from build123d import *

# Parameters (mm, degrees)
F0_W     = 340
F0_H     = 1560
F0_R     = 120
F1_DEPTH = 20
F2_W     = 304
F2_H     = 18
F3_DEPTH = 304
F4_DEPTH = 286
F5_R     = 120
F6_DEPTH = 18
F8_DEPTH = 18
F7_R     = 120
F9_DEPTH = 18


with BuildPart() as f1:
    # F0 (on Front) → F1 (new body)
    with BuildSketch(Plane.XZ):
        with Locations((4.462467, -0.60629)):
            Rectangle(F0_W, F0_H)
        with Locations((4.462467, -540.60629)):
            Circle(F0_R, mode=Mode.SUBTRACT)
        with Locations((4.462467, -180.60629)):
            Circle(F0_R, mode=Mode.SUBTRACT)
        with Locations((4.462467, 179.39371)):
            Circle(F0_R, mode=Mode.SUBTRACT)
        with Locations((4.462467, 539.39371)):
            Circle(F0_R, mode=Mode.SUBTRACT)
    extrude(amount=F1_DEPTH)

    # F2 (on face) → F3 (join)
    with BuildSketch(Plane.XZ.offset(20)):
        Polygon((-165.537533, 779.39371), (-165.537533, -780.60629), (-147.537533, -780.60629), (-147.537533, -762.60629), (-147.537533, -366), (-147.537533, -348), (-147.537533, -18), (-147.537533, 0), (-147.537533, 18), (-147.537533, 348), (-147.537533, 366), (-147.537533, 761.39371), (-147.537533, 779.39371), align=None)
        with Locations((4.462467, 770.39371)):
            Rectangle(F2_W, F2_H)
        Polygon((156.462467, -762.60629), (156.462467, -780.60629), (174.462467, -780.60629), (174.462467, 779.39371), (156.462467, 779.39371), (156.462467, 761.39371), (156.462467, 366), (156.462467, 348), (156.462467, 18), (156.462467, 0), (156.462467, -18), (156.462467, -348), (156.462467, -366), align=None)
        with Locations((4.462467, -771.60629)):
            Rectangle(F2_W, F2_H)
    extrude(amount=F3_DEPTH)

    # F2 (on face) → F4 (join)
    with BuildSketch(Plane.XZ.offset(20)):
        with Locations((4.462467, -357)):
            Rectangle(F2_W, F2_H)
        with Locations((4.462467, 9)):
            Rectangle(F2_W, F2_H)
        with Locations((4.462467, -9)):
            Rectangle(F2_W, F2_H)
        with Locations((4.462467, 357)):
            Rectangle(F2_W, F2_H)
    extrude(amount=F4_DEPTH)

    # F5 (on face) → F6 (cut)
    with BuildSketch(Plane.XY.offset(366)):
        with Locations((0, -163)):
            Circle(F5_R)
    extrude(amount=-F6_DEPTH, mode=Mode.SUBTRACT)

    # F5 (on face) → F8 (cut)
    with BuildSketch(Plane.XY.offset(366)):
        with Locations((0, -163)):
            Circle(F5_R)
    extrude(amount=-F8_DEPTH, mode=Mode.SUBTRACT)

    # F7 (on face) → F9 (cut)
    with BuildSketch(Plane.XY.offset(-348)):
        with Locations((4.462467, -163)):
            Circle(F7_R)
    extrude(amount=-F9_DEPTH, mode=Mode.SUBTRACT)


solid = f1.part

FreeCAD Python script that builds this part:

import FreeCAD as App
import Part
import Sketcher


def add_polygon(sketch, points):
    """Adds a closed chain of lines whose ends are joined by coincident constraints."""
    first, n = sketch.GeometryCount, len(points)
    for a, b in zip(points, points[1:] + points[:1]):
        sketch.addGeometry(Part.LineSegment(App.Vector(*a, 0), App.Vector(*b, 0)), False)
    for i in range(n):
        sketch.addConstraint(Sketcher.Constraint("Coincident", first + i, 2, first + (i + 1) % n, 1))

doc = App.newDocument("Part")
body = doc.addObject("PartDesign::Body", "Body")

# Sketch on XZ plane
sketch1 = body.newObject("Sketcher::SketchObject", "Sketch")
sketch1.AttachmentSupport = (doc.getObject("XZ_Plane"), [""])
sketch1.MapMode = "FlatFace"
add_polygon(sketch1, [(-166, 779), (-166, -781), (174, -781), (174, 779)])  # lines 0-3
sketch1.addGeometry(Part.Circle(App.Vector(4, -541, 0), App.Vector(0, 0, 1), 120), False)  # 4
sketch1.addGeometry(Part.Circle(App.Vector(4, -181, 0), App.Vector(0, 0, 1), 120), False)  # 5
sketch1.addGeometry(Part.Circle(App.Vector(4, 179, 0), App.Vector(0, 0, 1), 120), False)  # 6
sketch1.addGeometry(Part.Circle(App.Vector(4, 539, 0), App.Vector(0, 0, 1), 120), False)  # 7
sketch1.addConstraint([
    Sketcher.Constraint("Vertical", 0),
    Sketcher.Constraint("Horizontal", 1),
    Sketcher.Constraint("Vertical", 2),
    Sketcher.Constraint("Horizontal", 3),
    Sketcher.Constraint("Equal", 4, 5),
    Sketcher.Constraint("Equal", 5, 6),
    Sketcher.Constraint("Equal", 6, 7),
    Sketcher.Constraint("Vertical", 4, 3, 5, 3),
    Sketcher.Constraint("Vertical", 5, 3, 6, 3),
    Sketcher.Constraint("Vertical", 6, 3, 7, 3),
    Sketcher.Constraint("Diameter", 4, 240.0),
    Sketcher.Constraint("DistanceX", 1, 1, 1, 2, 340.0),
    Sketcher.Constraint("DistanceY", 0, 2, 0, 1, 1560.0),
    Sketcher.Constraint("DistanceY", 4, 3, 5, 3, 360.0),
    Sketcher.Constraint("DistanceY", 5, 3, 6, 3, 360.0),
    Sketcher.Constraint("DistanceY", 6, 3, 7, 3, 360.0),
    Sketcher.Constraint("DistanceX", 0, 2, 4, 3, 170.0),
    Sketcher.Constraint("DistanceY", 0, 2, 4, 3, 240.0),
    Sketcher.Constraint("DistanceY", 4, 3, -1, 1, 540.60629),
    Sketcher.Constraint("DistanceX", -1, 1, 4, 3, 4.462467),
])
pad1 = body.newObject("PartDesign::Pad", "Pad")
pad1.Profile = sketch1
pad1.Length = 20

# Sketch on XZ plane
sketch2 = body.newObject("Sketcher::SketchObject", "Sketch001")
sketch2.AttachmentSupport = (doc.getObject("XZ_Plane"), [""])
sketch2.MapMode = "FlatFace"
sketch2.AttachmentOffset = App.Placement(App.Vector(0, 0, 20), App.Rotation())
add_polygon(sketch2, [(-166, 779), (-166, -781), (174, -781), (174, 779)])  # lines 0-3
add_polygon(sketch2, [(-148, -763), (-148, 761), (156, 761), (156, -763)])  # lines 4-7
sketch2.addConstraint([
    Sketcher.Constraint("Vertical", 0),
    Sketcher.Constraint("Horizontal", 1),
    Sketcher.Constraint("Vertical", 2),
    Sketcher.Constraint("Horizontal", 3),
    Sketcher.Constraint("Vertical", 4),
    Sketcher.Constraint("Horizontal", 5),
    Sketcher.Constraint("Vertical", 6),
    Sketcher.Constraint("Horizontal", 7),
    Sketcher.Constraint("DistanceX", 1, 1, 1, 2, 340.0),
    Sketcher.Constraint("DistanceX", 5, 1, 5, 2, 304.0),
    Sketcher.Constraint("DistanceY", 0, 2, 0, 1, 1560.0),
    Sketcher.Constraint("DistanceY", 4, 1, 4, 2, 1524.0),
    Sketcher.Constraint("DistanceX", 3, 2, 4, 2, 18.0),
    Sketcher.Constraint("DistanceY", 4, 2, 3, 2, 18.0),
    Sketcher.Constraint("DistanceY", 0, 2, -1, 1, 780.60629),
    Sketcher.Constraint("DistanceX", 0, 2, -1, 1, 165.537533),
])
pad2 = body.newObject("PartDesign::Pad", "Pad001")
pad2.Profile = sketch2
pad2.Length = 304

# Sketch on XZ plane
sketch3 = body.newObject("Sketcher::SketchObject", "Sketch002")
sketch3.AttachmentSupport = (doc.getObject("XZ_Plane"), [""])
sketch3.MapMode = "FlatFace"
sketch3.AttachmentOffset = App.Placement(App.Vector(0, 0, 20), App.Rotation())
add_polygon(sketch3, [(-148, -348), (-148, -366), (156, -366), (156, -348)])  # lines 0-3
add_polygon(sketch3, [(-148, 18), (-148, -18), (156, -18), (156, 18)])  # lines 4-7
add_polygon(sketch3, [(-148, 366), (-148, 348), (156, 348), (156, 366)])  # lines 8-11
sketch3.addConstraint([
    Sketcher.Constraint("Vertical", 0),
    Sketcher.Constraint("Horizontal", 1),
    Sketcher.Constraint("Vertical", 2),
    Sketcher.Constraint("Horizontal", 3),
    Sketcher.Constraint("Vertical", 4),
    Sketcher.Constraint("Horizontal", 5),
    Sketcher.Constraint("Vertical", 6),
    Sketcher.Constraint("Horizontal", 7),
    Sketcher.Constraint("Vertical", 8),
    Sketcher.Constraint("Horizontal", 9),
    Sketcher.Constraint("Vertical", 10),
    Sketcher.Constraint("Horizontal", 11),
    Sketcher.Constraint("Symmetric", 3, 2, 8, 2, -1),
    Sketcher.Constraint("Symmetric", 1, 2, 10, 2, -1),
    Sketcher.Constraint("Vertical", 3, 2, 4, 2),
    Sketcher.Constraint("Vertical", 2, 2, 5, 2),
    Sketcher.Constraint("DistanceX", 1, 1, 1, 2, 304.0),
    Sketcher.Constraint("DistanceY", 0, 2, 0, 1, 18.0),
    Sketcher.Constraint("DistanceY", 4, 2, 4, 1, 36.0),
    Sketcher.Constraint("DistanceY", 0, 2, -1, 1, 366.0),
    Sketcher.Constraint("DistanceY", 4, 2, -1, 1, 18.0),
    Sketcher.Constraint("DistanceX", 0, 2, -1, 1, 147.537533),
])
pad3 = body.newObject("PartDesign::Pad", "Pad002")
pad3.Profile = sketch3
pad3.Length = 286

# Sketch on XY plane
sketch4 = body.newObject("Sketcher::SketchObject", "Sketch003")
sketch4.AttachmentSupport = (doc.getObject("XY_Plane"), [""])
sketch4.MapMode = "FlatFace"
sketch4.AttachmentOffset = App.Placement(App.Vector(0, 0, 366), App.Rotation())
sketch4.addGeometry(Part.Circle(App.Vector(0, -163, 0), App.Vector(0, 0, 1), 120), False)
sketch4.addConstraint([
    Sketcher.Constraint("PointOnObject", 0, 3, -2),
    Sketcher.Constraint("Diameter", 0, 240.0),
    Sketcher.Constraint("DistanceY", 0, 3, -1, 1, 163.0),
])
pocket1 = body.newObject("PartDesign::Pocket", "Pocket")
pocket1.Profile = sketch4
pocket1.Length = 18

# Sketch on XY plane
sketch5 = body.newObject("Sketcher::SketchObject", "Sketch004")
sketch5.AttachmentSupport = (doc.getObject("XY_Plane"), [""])
sketch5.MapMode = "FlatFace"
sketch5.AttachmentOffset = App.Placement(App.Vector(0, 0, 366), App.Rotation())
sketch5.addGeometry(Part.Circle(App.Vector(0, -163, 0), App.Vector(0, 0, 1), 120), False)
sketch5.addConstraint([
    Sketcher.Constraint("PointOnObject", 0, 3, -2),
    Sketcher.Constraint("Diameter", 0, 240.0),
    Sketcher.Constraint("DistanceY", 0, 3, -1, 1, 163.0),
])
pocket2 = body.newObject("PartDesign::Pocket", "Pocket001")
pocket2.Profile = sketch5
pocket2.Length = 18

# Sketch on XY plane
sketch6 = body.newObject("Sketcher::SketchObject", "Sketch005")
sketch6.AttachmentSupport = (doc.getObject("XY_Plane"), [""])
sketch6.MapMode = "FlatFace"
sketch6.AttachmentOffset = App.Placement(App.Vector(0, 0, -348), App.Rotation())
sketch6.addGeometry(Part.Circle(App.Vector(4, -163, 0), App.Vector(0, 0, 1), 120), False)
sketch6.addConstraint([
    Sketcher.Constraint("Diameter", 0, 240.0),
    Sketcher.Constraint("DistanceY", 0, 3, -1, 1, 163.0),
    Sketcher.Constraint("DistanceX", -1, 1, 0, 3, 4.462467),
])
pocket3 = body.newObject("PartDesign::Pocket", "Pocket002")
pocket3.Profile = sketch6
pocket3.Length = 18

doc.recompute()
